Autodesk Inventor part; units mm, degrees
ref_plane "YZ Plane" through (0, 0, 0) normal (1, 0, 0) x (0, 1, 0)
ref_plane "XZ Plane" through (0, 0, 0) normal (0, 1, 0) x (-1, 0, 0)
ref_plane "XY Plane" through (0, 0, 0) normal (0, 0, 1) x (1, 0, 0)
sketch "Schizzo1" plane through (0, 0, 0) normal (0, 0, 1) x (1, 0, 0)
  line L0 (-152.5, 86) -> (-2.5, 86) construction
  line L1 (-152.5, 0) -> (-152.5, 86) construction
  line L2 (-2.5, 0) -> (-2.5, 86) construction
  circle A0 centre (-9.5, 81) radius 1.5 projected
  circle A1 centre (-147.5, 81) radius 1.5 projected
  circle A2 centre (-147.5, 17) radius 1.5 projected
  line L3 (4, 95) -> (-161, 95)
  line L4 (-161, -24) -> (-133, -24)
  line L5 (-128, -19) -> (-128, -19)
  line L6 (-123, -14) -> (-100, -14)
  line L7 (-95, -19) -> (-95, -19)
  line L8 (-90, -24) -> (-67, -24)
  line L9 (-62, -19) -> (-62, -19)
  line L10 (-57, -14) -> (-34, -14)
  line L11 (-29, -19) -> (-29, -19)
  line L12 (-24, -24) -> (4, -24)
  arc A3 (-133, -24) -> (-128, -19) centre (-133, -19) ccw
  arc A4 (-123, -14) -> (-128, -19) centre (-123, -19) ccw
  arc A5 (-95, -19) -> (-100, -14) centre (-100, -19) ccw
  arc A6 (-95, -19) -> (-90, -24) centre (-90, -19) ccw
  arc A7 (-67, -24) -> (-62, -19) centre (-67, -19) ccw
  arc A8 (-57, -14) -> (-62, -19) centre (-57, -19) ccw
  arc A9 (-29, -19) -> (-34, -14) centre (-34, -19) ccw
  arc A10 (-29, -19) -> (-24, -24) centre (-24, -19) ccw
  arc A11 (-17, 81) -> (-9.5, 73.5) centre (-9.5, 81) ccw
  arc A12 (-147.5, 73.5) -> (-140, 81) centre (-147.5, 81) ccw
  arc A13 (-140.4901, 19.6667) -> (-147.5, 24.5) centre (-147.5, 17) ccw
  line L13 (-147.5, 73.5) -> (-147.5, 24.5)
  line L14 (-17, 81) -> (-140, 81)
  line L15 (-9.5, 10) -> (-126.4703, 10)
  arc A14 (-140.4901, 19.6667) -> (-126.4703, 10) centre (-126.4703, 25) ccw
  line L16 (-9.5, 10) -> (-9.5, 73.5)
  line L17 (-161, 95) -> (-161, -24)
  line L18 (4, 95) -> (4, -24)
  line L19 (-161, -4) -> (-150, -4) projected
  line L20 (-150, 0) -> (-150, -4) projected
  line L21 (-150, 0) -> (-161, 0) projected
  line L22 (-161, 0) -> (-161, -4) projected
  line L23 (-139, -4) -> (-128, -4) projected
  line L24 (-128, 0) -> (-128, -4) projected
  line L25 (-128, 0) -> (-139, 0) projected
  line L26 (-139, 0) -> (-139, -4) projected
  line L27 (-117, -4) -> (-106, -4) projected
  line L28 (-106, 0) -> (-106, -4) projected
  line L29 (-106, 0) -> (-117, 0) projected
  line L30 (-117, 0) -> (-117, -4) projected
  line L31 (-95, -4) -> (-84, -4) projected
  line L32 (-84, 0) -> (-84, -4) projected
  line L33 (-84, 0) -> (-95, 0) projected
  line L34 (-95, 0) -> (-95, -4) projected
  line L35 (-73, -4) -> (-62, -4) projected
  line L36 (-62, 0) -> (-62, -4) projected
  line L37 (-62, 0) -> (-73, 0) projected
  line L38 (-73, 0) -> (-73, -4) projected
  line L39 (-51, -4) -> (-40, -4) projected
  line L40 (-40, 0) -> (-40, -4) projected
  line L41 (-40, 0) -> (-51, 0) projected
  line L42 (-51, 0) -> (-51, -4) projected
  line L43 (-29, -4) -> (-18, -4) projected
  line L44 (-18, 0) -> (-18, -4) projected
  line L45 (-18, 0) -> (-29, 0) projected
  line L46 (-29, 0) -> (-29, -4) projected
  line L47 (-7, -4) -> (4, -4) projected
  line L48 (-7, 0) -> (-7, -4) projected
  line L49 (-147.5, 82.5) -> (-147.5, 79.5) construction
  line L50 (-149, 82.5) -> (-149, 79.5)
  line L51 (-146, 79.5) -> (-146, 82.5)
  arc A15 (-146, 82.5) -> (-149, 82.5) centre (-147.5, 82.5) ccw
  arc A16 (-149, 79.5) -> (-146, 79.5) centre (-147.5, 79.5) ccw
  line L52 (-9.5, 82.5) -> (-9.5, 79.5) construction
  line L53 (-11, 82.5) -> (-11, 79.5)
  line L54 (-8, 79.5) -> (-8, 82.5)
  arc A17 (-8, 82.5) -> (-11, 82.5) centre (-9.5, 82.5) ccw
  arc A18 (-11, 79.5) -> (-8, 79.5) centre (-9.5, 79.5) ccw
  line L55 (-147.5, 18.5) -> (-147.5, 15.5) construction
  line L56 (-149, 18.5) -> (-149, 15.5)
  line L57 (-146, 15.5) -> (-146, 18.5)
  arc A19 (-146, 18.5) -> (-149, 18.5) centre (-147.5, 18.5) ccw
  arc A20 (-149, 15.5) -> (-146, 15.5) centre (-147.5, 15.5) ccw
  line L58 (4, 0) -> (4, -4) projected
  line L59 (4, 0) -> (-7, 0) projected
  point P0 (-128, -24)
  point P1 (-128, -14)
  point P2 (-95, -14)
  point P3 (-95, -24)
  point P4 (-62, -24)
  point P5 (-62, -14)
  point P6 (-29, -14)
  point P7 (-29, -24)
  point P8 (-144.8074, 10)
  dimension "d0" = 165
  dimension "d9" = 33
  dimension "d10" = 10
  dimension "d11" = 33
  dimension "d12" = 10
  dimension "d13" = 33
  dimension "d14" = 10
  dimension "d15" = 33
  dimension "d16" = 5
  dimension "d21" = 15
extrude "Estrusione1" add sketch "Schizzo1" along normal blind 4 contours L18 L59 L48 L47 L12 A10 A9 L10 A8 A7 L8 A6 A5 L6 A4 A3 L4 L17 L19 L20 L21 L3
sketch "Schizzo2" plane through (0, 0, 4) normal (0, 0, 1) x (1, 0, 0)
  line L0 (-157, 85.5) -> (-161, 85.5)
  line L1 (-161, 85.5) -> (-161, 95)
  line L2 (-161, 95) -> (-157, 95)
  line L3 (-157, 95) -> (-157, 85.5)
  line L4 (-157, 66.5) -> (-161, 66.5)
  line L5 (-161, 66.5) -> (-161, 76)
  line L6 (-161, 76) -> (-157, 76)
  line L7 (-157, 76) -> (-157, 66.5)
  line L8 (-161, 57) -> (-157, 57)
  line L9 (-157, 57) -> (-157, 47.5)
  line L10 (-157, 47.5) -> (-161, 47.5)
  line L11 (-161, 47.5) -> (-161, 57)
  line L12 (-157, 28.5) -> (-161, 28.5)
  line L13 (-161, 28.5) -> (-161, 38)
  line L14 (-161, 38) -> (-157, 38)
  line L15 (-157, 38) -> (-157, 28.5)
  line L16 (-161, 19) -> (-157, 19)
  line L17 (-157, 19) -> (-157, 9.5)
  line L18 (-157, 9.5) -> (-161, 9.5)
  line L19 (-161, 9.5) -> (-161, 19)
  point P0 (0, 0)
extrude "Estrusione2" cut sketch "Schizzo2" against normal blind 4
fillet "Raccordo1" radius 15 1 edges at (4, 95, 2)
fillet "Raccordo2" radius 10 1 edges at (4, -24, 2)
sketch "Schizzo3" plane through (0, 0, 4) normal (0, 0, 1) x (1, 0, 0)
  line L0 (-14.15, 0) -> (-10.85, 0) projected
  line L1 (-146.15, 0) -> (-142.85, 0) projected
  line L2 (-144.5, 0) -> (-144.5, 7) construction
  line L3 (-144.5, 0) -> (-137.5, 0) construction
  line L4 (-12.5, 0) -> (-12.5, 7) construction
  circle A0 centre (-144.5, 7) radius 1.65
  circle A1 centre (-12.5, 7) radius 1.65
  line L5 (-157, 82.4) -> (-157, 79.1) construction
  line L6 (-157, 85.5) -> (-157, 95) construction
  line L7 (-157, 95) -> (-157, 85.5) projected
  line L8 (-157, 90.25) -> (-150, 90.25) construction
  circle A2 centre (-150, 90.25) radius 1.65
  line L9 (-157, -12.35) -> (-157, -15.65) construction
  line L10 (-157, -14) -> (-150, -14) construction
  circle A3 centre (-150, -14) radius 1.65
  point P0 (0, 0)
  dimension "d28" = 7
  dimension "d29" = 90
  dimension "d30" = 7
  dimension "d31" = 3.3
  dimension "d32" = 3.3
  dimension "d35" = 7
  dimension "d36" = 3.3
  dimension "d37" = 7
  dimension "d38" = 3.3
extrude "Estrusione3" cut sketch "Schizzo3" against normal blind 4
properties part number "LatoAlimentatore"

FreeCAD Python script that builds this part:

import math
import FreeCAD as App
import Part
import Sketcher

V = App.Vector
Q = App.Units.Quantity


def edges_at(feature, points):
    """Names of the edges that pass closest to the given points."""
    edges = feature.Shape.Edges
    near = lambda p: min(range(len(edges)), key=lambda i: edges[i].distToShape(Part.Vertex(*p))[0])
    return sorted({f"Edge{near(p) + 1}" for p in points})

doc = App.newDocument("Part")
body = doc.addObject("PartDesign::Body", "Body")

# Sketch on XY plane
sketch1 = body.newObject("Sketcher::SketchObject", "Sketch")
sketch1.AttachmentSupport = (doc.getObject("XY_Plane"), [""])
sketch1.MapMode = "FlatFace"
sketch1.addGeometry([
    Part.LineSegment(V(4, 0, 0), V(4, 95, 0)),  # 0
    Part.LineSegment(V(4, 95, 0), V(-161, 95, 0)),  # 1
    Part.LineSegment(V(-161, 95, 0), V(-161, 0, 0)),  # 2
    Part.LineSegment(V(-161, 0, 0), V(-150, 0, 0)),  # 3
    Part.LineSegment(V(-150, 0, 0), V(-150, -4, 0)),  # 4
    Part.LineSegment(V(-150, -4, 0), V(-161, -4, 0)),  # 5
    Part.LineSegment(V(-161, -4, 0), V(-161, -24, 0)),  # 6
    Part.LineSegment(V(-161, -24, 0), V(-133, -24, 0)),  # 7
    Part.ArcOfCircle(Part.Circle(V(-133, -19, 0), V(0, 0, 1), 5), math.radians(-90), math.radians(0)),  # 8
    Part.ArcOfCircle(Part.Circle(V(-123, -19, 0), V(0, 0, 1), 5), math.radians(90), math.radians(180)),  # 9
    Part.LineSegment(V(-123, -14, 0), V(-100, -14, 0)),  # 10
    Part.ArcOfCircle(Part.Circle(V(-100, -19, 0), V(0, 0, 1), 5), math.radians(0), math.radians(90)),  # 11
    Part.ArcOfCircle(Part.Circle(V(-90, -19, 0), V(0, 0, 1), 5), math.radians(180), math.radians(270)),  # 12
    Part.LineSegment(V(-90, -24, 0), V(-67, -24, 0)),  # 13
    Part.ArcOfCircle(Part.Circle(V(-67, -19, 0), V(0, 0, 1), 5), math.radians(-90), math.radians(0)),  # 14
    Part.ArcOfCircle(Part.Circle(V(-57, -19, 0), V(0, 0, 1), 5), math.radians(90), math.radians(180)),  # 15
    Part.LineSegment(V(-57, -14, 0), V(-34, -14, 0)),  # 16
    Part.ArcOfCircle(Part.Circle(V(-34, -19, 0), V(0, 0, 1), 5), math.radians(0), math.radians(90)),  # 17
    Part.ArcOfCircle(Part.Circle(V(-24, -19, 0), V(0, 0, 1), 5), math.radians(180), math.radians(270)),  # 18
    Part.LineSegment(V(-24, -24, 0), V(4, -24, 0)),  # 19
    Part.LineSegment(V(4, -24, 0), V(4, -4, 0)),  # 20
    Part.LineSegment(V(4, -4, 0), V(-7, -4, 0)),  # 21
    Part.LineSegment(V(-7, -4, 0), V(-7, 0, 0)),  # 22
    Part.LineSegment(V(-7, 0, 0), V(4, 0, 0)),  # 23
    Part.LineSegment(V(-128, -4, 0), V(-139, -4, 0)),  # 24
    Part.LineSegment(V(-139, -4, 0), V(-139, 0, 0)),  # 25
    Part.LineSegment(V(-139, 0, 0), V(-128, 0, 0)),  # 26
    Part.LineSegment(V(-128, 0, 0), V(-128, -4, 0)),  # 27
    Part.LineSegment(V(-106, -4, 0), V(-117, -4, 0)),  # 28
    Part.LineSegment(V(-117, -4, 0), V(-117, 0, 0)),  # 29
    Part.LineSegment(V(-117, 0, 0), V(-106, 0, 0)),  # 30
    Part.LineSegment(V(-106, 0, 0), V(-106, -4, 0)),  # 31
    Part.LineSegment(V(-84, -4, 0), V(-95, -4, 0)),  # 32
    Part.LineSegment(V(-95, -4, 0), V(-95, 0, 0)),  # 33
    Part.LineSegment(V(-95, 0, 0), V(-84, 0, 0)),  # 34
    Part.LineSegment(V(-84, 0, 0), V(-84, -4, 0)),  # 35
    Part.LineSegment(V(-146, 18.5, 0), V(-146, 15.5, 0)),  # 36
    Part.ArcOfCircle(Part.Circle(V(-147.5, 15.5, 0), V(0, 0, 1), 1.5), math.radians(180), math.radians(360)),  # 37
    Part.LineSegment(V(-149, 15.5, 0), V(-149, 18.5, 0)),  # 38
    Part.ArcOfCircle(Part.Circle(V(-147.5, 18.5, 0), V(0, 0, 1), 1.5), math.radians(0), math.radians(180)),  # 39
    Part.LineSegment(V(-62, -4, 0), V(-73, -4, 0)),  # 40
    Part.LineSegment(V(-73, -4, 0), V(-73, 0, 0)),  # 41
    Part.LineSegment(V(-73, 0, 0), V(-62, 0, 0)),  # 42
    Part.LineSegment(V(-62, 0, 0), V(-62, -4, 0)),  # 43
    Part.LineSegment(V(-40, -4, 0), V(-51, -4, 0)),  # 44
    Part.LineSegment(V(-51, -4, 0), V(-51, 0, 0)),  # 45
    Part.LineSegment(V(-51, 0, 0), V(-40, 0, 0)),  # 46
    Part.LineSegment(V(-40, 0, 0), V(-40, -4, 0)),  # 47
    Part.LineSegment(V(-18, -4, 0), V(-29, -4, 0)),  # 48
    Part.LineSegment(V(-29, -4, 0), V(-29, 0, 0)),  # 49
    Part.LineSegment(V(-29, 0, 0), V(-18, 0, 0)),  # 50
    Part.LineSegment(V(-18, 0, 0), V(-18, -4, 0)),  # 51
    Part.LineSegment(V(-146, 82.5, 0), V(-146, 79.5, 0)),  # 52
    Part.ArcOfCircle(Part.Circle(V(-147.5, 79.5, 0), V(0, 0, 1), 1.5), math.radians(180), math.radians(360)),  # 53
    Part.LineSegment(V(-149, 79.5, 0), V(-149, 82.5, 0)),  # 54
    Part.ArcOfCircle(Part.Circle(V(-147.5, 82.5, 0), V(0, 0, 1), 1.5), math.radians(0), math.radians(180)),  # 55
    Part.LineSegment(V(-140, 81, 0), V(-17, 81, 0)),  # 56
    Part.ArcOfCircle(Part.Circle(V(-9.5, 81, 0), V(0, 0, 1), 7.5), math.radians(180), math.radians(270)),  # 57
    Part.LineSegment(V(-9.5, 73.5, 0), V(-9.5, 10, 0)),  # 58
    Part.LineSegment(V(-9.5, 10, 0), V(-126.5, 10, 0)),  # 59
    Part.ArcOfCircle(Part.Circle(V(-126.5, 25, 0), V(0, 0, 1), 15), math.radians(-159), math.radians(-90)),  # 60
    Part.ArcOfCircle(Part.Circle(V(-147.5, 17, 0), V(0, 0, 1), 7.5), math.radians(21), math.radians(90)),  # 61
    Part.LineSegment(V(-147.5, 24.5, 0), V(-147.5, 73.5, 0)),  # 62
    Part.ArcOfCircle(Part.Circle(V(-147.5, 81, 0), V(0, 0, 1), 7.5), math.radians(-90), math.radians(0)),  # 63
    Part.LineSegment(V(-8, 82.5, 0), V(-8, 79.5, 0)),  # 64
    Part.ArcOfCircle(Part.Circle(V(-9.5, 79.5, 0), V(0, 0, 1), 1.5), math.radians(180), math.radians(360)),  # 65
    Part.LineSegment(V(-11, 79.5, 0), V(-11, 82.5, 0)),  # 66
    Part.ArcOfCircle(Part.Circle(V(-9.5, 82.5, 0), V(0, 0, 1), 1.5), math.radians(0), math.radians(180)),  # 67
], False)
sketch1.addConstraint([
    Sketcher.Constraint("Coincident", 0, 2, 1, 1),
    Sketcher.Constraint("Coincident", 1, 2, 2, 1),
    Sketcher.Constraint("Coincident", 2, 2, 3, 1),
    Sketcher.Constraint("Coincident", 3, 2, 4, 1),
    Sketcher.Constraint("Coincident", 4, 2, 5, 1),
    Sketcher.Constraint("Coincident", 5, 2, 6, 1),
    Sketcher.Constraint("Coincident", 6, 2, 7, 1),
    Sketcher.Constraint("Tangent", 7, 2, 8, 1),
    Sketcher.Constraint("Tangent", 8, 2, 9, 2),
    Sketcher.Constraint("Tangent", 9, 1, 10, 1),
    Sketcher.Constraint("Tangent", 10, 2, 11, 2),
    Sketcher.Constraint("Tangent", 11, 1, 12, 1),
    Sketcher.Constraint("Tangent", 12, 2, 13, 1),
    Sketcher.Constraint("Tangent", 13, 2, 14, 1),
    Sketcher.Constraint("Tangent", 14, 2, 15, 2),
    Sketcher.Constraint("Tangent", 15, 1, 16, 1),
    Sketcher.Constraint("Tangent", 16, 2, 17, 2),
    Sketcher.Constraint("Tangent", 17, 1, 18, 1),
    Sketcher.Constraint("Tangent", 18, 2, 19, 1),
    Sketcher.Constraint("Coincident", 19, 2, 20, 1),
    Sketcher.Constraint("Coincident", 20, 2, 21, 1),
    Sketcher.Constraint("Coincident", 21, 2, 22, 1),
    Sketcher.Constraint("Coincident", 22, 2, 23, 1),
    Sketcher.Constraint("Coincident", 23, 2, 0, 1),
    Sketcher.Constraint("Coincident", 24, 2, 25, 1),
    Sketcher.Constraint("Coincident", 25, 2, 26, 1),
    Sketcher.Constraint("Coincident", 26, 2, 27, 1),
    Sketcher.Constraint("Coincident", 27, 2, 24, 1),
    Sketcher.Constraint("Coincident", 28, 2, 29, 1),
    Sketcher.Constraint("Coincident", 29, 2, 30, 1),
    Sketcher.Constraint("Coincident", 30, 2, 31, 1),
    Sketcher.Constraint("Coincident", 31, 2, 28, 1),
    Sketcher.Constraint("Coincident", 32, 2, 33, 1),
    Sketcher.Constraint("Coincident", 33, 2, 34, 1),
    Sketcher.Constraint("Coincident", 34, 2, 35, 1),
    Sketcher.Constraint("Coincident", 35, 2, 32, 1),
    Sketcher.Constraint("Tangent", 36, 2, 37, 2),
    Sketcher.Constraint("Tangent", 37, 1, 38, 1),
    Sketcher.Constraint("Tangent", 38, 2, 39, 2),
    Sketcher.Constraint("Tangent", 39, 1, 36, 1),
    Sketcher.Constraint("Coincident", 40, 2, 41, 1),
    Sketcher.Constraint("Coincident", 41, 2, 42, 1),
    Sketcher.Constraint("Coincident", 42, 2, 43, 1),
    Sketcher.Constraint("Coincident", 43, 2, 40, 1),
    Sketcher.Constraint("Coincident", 44, 2, 45, 1),
    Sketcher.Constraint("Coincident", 45, 2, 46, 1),
    Sketcher.Constraint("Coincident", 46, 2, 47, 1),
    Sketcher.Constraint("Coincident", 47, 2, 44, 1),
    Sketcher.Constraint("Coincident", 48, 2, 49, 1),
    Sketcher.Constraint("Coincident", 49, 2, 50, 1),
    Sketcher.Constraint("Coincident", 50, 2, 51, 1),
    Sketcher.Constraint("Coincident", 51, 2, 48, 1),
    Sketcher.Constraint("Tangent", 52, 2, 53, 2),
    Sketcher.Constraint("Tangent", 53, 1, 54, 1),
    Sketcher.Constraint("Tangent", 54, 2, 55, 2),
    Sketcher.Constraint("Tangent", 55, 1, 52, 1),
    Sketcher.Constraint("Coincident", 56, 2, 57, 1),
    Sketcher.Constraint("Coincident", 57, 2, 58, 1),
    Sketcher.Constraint("Coincident", 58, 2, 59, 1),
    Sketcher.Constraint("Tangent", 59, 2, 60, 2),
    Sketcher.Constraint("Tangent", 60, 1, 61, 1),
    Sketcher.Constraint("Coincident", 61, 2, 62, 1),
    Sketcher.Constraint("Coincident", 62, 2, 63, 1),
    Sketcher.Constraint("Coincident", 63, 2, 56, 1),
    Sketcher.Constraint("Tangent", 64, 2, 65, 2),
    Sketcher.Constraint("Tangent", 65, 1, 66, 1),
    Sketcher.Constraint("Tangent", 66, 2, 67, 2),
    Sketcher.Constraint("Tangent", 67, 1, 64, 1),
    Sketcher.Constraint("Vertical", 0),
    Sketcher.Constraint("Horizontal", 1),
    Sketcher.Constraint("Vertical", 2),
    Sketcher.Constraint("Horizontal", 3),
    Sketcher.Constraint("Vertical", 4),
    Sketcher.Constraint("Horizontal", 5),
    Sketcher.Constraint("Vertical", 6),
    Sketcher.Constraint("Horizontal", 7),
    Sketcher.Constraint("Horizontal", 10),
    Sketcher.Constraint("Horizontal", 13),
    Sketcher.Constraint("Horizontal", 16),
    Sketcher.Constraint("Horizontal", 19),
    Sketcher.Constraint("Vertical", 20),
    Sketcher.Constraint("Horizontal", 21),
    Sketcher.Constraint("Vertical", 22),
    Sketcher.Constraint("Horizontal", 23),
    Sketcher.Constraint("Horizontal", 24),
    Sketcher.Constraint("Vertical", 25),
    Sketcher.Constraint("Horizontal", 26),
    Sketcher.Constraint("Vertical", 27),
    Sketcher.Constraint("Horizontal", 28),
    Sketcher.Constraint("Vertical", 29),
    Sketcher.Constraint("Horizontal", 30),
    Sketcher.Constraint("Vertical", 31),
    Sketcher.Constraint("Horizontal", 32),
    Sketcher.Constraint("Vertical", 33),
    Sketcher.Constraint("Horizontal", 34),
    Sketcher.Constraint("Vertical", 35),
    Sketcher.Constraint("Vertical", 36),
    Sketcher.Constraint("Vertical", 38),
    Sketcher.Constraint("Horizontal", 40),
    Sketcher.Constraint("Vertical", 41),
    Sketcher.Constraint("Horizontal", 42),
    Sketcher.Constraint("Vertical", 43),
    Sketcher.Constraint("Horizontal", 44),
    Sketcher.Constraint("Vertical", 45),
    Sketcher.Constraint("Horizontal", 46),
    Sketcher.Constraint("Vertical", 47),
    Sketcher.Constraint("Horizontal", 48),
    Sketcher.Constraint("Vertical", 49),
    Sketcher.Constraint("Horizontal", 50),
    Sketcher.Constraint("Vertical", 51),
    Sketcher.Constraint("Vertical", 52),
    Sketcher.Constraint("Vertical", 54),
    Sketcher.Constraint("Horizontal", 56),
    Sketcher.Constraint("Vertical", 58),
    Sketcher.Constraint("Horizontal", 59),
    Sketcher.Constraint("Vertical", 62),
    Sketcher.Constraint("Vertical", 64),
    Sketcher.Constraint("Vertical", 66),
    Sketcher.Constraint("Equal", 8, 9),
    Sketcher.Constraint("Equal", 9, 11),
    Sketcher.Constraint("Equal", 11, 12),
    Sketcher.Constraint("Equal", 12, 14),
    Sketcher.Constraint("Equal", 14, 15),
    Sketcher.Constraint("Equal", 15, 17),
    Sketcher.Constraint("Equal", 17, 18),
    Sketcher.Constraint("Equal", 39, 53),
    Sketcher.Constraint("Equal", 57, 61),
    Sketcher.Constraint("Equal", 61, 63),
    Sketcher.Constraint("Equal", 55, 65),
    Sketcher.Constraint("PointOnObject", 2, 2, -1),
    Sketcher.Constraint("PointOnObject", 22, 2, -1),
    Sketcher.Constraint("PointOnObject", 25, 2, -1),
    Sketcher.Constraint("PointOnObject", 29, 2, -1),
    Sketcher.Constraint("PointOnObject", 33, 2, -1),
    Sketcher.Constraint("PointOnObject", 41, 2, -1),
    Sketcher.Constraint("PointOnObject", 45, 2, -1),
    Sketcher.Constraint("PointOnObject", 49, 2, -1),
    Sketcher.Constraint("Horizontal", 8, 3, 9, 3),
    Sketcher.Constraint("Horizontal", 11, 3, 12, 3),
    Sketcher.Constraint("Horizontal", 14, 3, 15, 3),
    Sketcher.Constraint("Horizontal", 17, 3, 18, 3),
    Sketcher.Constraint("Horizontal", 57, 3, 63, 3),
    Sketcher.Constraint("Horizontal", 53, 3, 65, 3),
    Sketcher.Constraint("Horizontal", 55, 3, 67, 3),
    Sketcher.Constraint("Horizontal", 5, 2, 20, 2),
    Sketcher.Constraint("Horizontal", 21, 2, 24, 2),
    Sketcher.Constraint("Horizontal", 27, 2, 28, 2),
    Sketcher.Constraint("Horizontal", 31, 2, 32, 2),
    Sketcher.Constraint("Horizontal", 35, 2, 40, 2),
    Sketcher.Constraint("Horizontal", 43, 2, 44, 2),
    Sketcher.Constraint("Horizontal", 47, 2, 48, 2),
    Sketcher.Constraint("Horizontal", 63, 3, 56, 2),
    Sketcher.Constraint("Vertical", 39, 3, 53, 3),
    Sketcher.Constraint("Vertical", 55, 3, 61, 3),
    Sketcher.Constraint("Vertical", 61, 3, 63, 3),
    Sketcher.Constraint("Vertical", 57, 3, 65, 3),
    Sketcher.Constraint("Vertical", 2, 2, 5, 2),
    Sketcher.Constraint("Vertical", 0, 2, 19, 2),
    Sketcher.Constraint("Vertical", 8, 2, 26, 2),
    Sketcher.Constraint("Vertical", 11, 1, 32, 2),
    Sketcher.Constraint("Vertical", 14, 2, 42, 2),
    Sketcher.Constraint("Vertical", 17, 1, 48, 2),
    Sketcher.Constraint("Vertical", 67, 3, 57, 2),
    Sketcher.Constraint("Vertical", 63, 3, 61, 2),
    Sketcher.Constraint("Equal", 10, 13),
    Sketcher.Constraint("Equal", 13, 16),
    Sketcher.Constraint("Equal", 7, 19),
    Sketcher.Constraint("Equal", 5, 21),
    Sketcher.Constraint("Equal", 23, 24),
    Sketcher.Constraint("Equal", 26, 28),
    Sketcher.Constraint("Equal", 30, 32),
    Sketcher.Constraint("Equal", 34, 40),
    Sketcher.Constraint("Equal", 42, 44),
    Sketcher.Constraint("Equal", 46, 48),
    Sketcher.Constraint("Equal", 38, 52),
    Sketcher.Constraint("Radius", 8, Q("5 mm")),
    Sketcher.Constraint("Radius", 60, Q("15 mm")),
    Sketcher.Constraint("Radius", 57, Q("7.5 mm")),
    Sketcher.Constraint("DistanceX", 1, 2, 1, 1, Q("165 mm")),
    Sketcher.Constraint("DistanceY", -1, 1, 58, 2, Q("10 mm")),
    Sketcher.Constraint("Radius", 37, Q("1.5 mm")),
    Sketcher.Constraint("DistanceX", 3, 1, 3, 2, Q("11 mm")),
    Sketcher.Constraint("DistanceX", 7, 1, 7, 2, Q("28 mm")),
    Sketcher.Constraint("DistanceX", 56, 1, 56, 2, Q("123 mm")),
    Sketcher.Constraint("DistanceY", 0, 1, 0, 2, Q("95 mm")),
    Sketcher.Constraint("DistanceY", 4, 2, 4, 1, Q("4 mm")),
    Sketcher.Constraint("DistanceY", 6, 2, 6, 1, Q("20 mm")),
    Sketcher.Constraint("DistanceY", 36, 2, 36, 1, Q("3 mm")),
    Sketcher.Constraint("DistanceY", 62, 1, 62, 2, Q("49 mm")),
    Sketcher.Constraint("DistanceY", 58, 2, 58, 1, Q("63.5 mm")),
    Sketcher.Constraint("DistanceX", 8, 3, -1, 1, Q("133 mm")),
    Sketcher.Constraint("DistanceX", 28, 2, -1, 1, Q("117 mm")),
    Sketcher.Constraint("DistanceX", 36, 2, -1, 1, Q("146 mm")),
    Sketcher.Constraint("DistanceX", 44, 2, -1, 1, Q("51 mm")),
    Sketcher.Constraint("DistanceY", -1, 1, 37, 3, Q("15.5 mm")),
    Sketcher.Constraint("DistanceY", -1, 1, 53, 3, Q("79.5 mm")),
])
pad1 = body.newObject("PartDesign::Pad", "Pad")
pad1.Profile = sketch1
pad1.Length = 4

# Sketch on XY plane
sketch2 = body.newObject("Sketcher::SketchObject", "Sketch001")
sketch2.AttachmentSupport = (doc.getObject("XY_Plane"), [""])
sketch2.MapMode = "FlatFace"
sketch2.AttachmentOffset = App.Placement(V(0, 0, 4), App.Rotation())
sketch2.addGeometry([
    Part.LineSegment(V(-161, 85.5, 0), V(-157, 85.5, 0)),  # 0
    Part.LineSegment(V(-157, 85.5, 0), V(-157, 95, 0)),  # 1
    Part.LineSegment(V(-157, 95, 0), V(-161, 95, 0)),  # 2
    Part.LineSegment(V(-161, 95, 0), V(-161, 85.5, 0)),  # 3
    Part.LineSegment(V(-161, 66.5, 0), V(-157, 66.5, 0)),  # 4
    Part.LineSegment(V(-157, 66.5, 0), V(-157, 76, 0)),  # 5
    Part.LineSegment(V(-157, 76, 0), V(-161, 76, 0)),  # 6
    Part.LineSegment(V(-161, 76, 0), V(-161, 66.5, 0)),  # 7
    Part.LineSegment(V(-157, 57, 0), V(-161, 57, 0)),  # 8
    Part.LineSegment(V(-161, 57, 0), V(-161, 47.5, 0)),  # 9
    Part.LineSegment(V(-161, 47.5, 0), V(-157, 47.5, 0)),  # 10
    Part.LineSegment(V(-157, 47.5, 0), V(-157, 57, 0)),  # 11
    Part.LineSegment(V(-161, 28.5, 0), V(-157, 28.5, 0)),  # 12
    Part.LineSegment(V(-157, 28.5, 0), V(-157, 38, 0)),  # 13
    Part.LineSegment(V(-157, 38, 0), V(-161, 38, 0)),  # 14
    Part.LineSegment(V(-161, 38, 0), V(-161, 28.5, 0)),  # 15
    Part.LineSegment(V(-157, 19, 0), V(-161, 19, 0)),  # 16
    Part.LineSegment(V(-161, 19, 0), V(-161, 9.5, 0)),  # 17
    Part.LineSegment(V(-161, 9.5, 0), V(-157, 9.5, 0)),  # 18
    Part.LineSegment(V(-157, 9.5, 0), V(-157, 19, 0)),  # 19
], False)
sketch2.addConstraint([
    Sketcher.Constraint("Coincident", 0, 2, 1, 1),
    Sketcher.Constraint("Coincident", 1, 2, 2, 1),
    Sketcher.Constraint("Coincident", 2, 2, 3, 1),
    Sketcher.Constraint("Coincident", 3, 2, 0, 1),
    Sketcher.Constraint("Coincident", 4, 2, 5, 1),
    Sketcher.Constraint("Coincident", 5, 2, 6, 1),
    Sketcher.Constraint("Coincident", 6, 2, 7, 1),
    Sketcher.Constraint("Coincident", 7, 2, 4, 1),
    Sketcher.Constraint("Coincident", 8, 2, 9, 1),
    Sketcher.Constraint("Coincident", 9, 2, 10, 1),
    Sketcher.Constraint("Coincident", 10, 2, 11, 1),
    Sketcher.Constraint("Coincident", 11, 2, 8, 1),
    Sketcher.Constraint("Coincident", 12, 2, 13, 1),
    Sketcher.Constraint("Coincident", 13, 2, 14, 1),
    Sketcher.Constraint("Coincident", 14, 2, 15, 1),
    Sketcher.Constraint("Coincident", 15, 2, 12, 1),
    Sketcher.Constraint("Coincident", 16, 2, 17, 1),
    Sketcher.Constraint("Coincident", 17, 2, 18, 1),
    Sketcher.Constraint("Coincident", 18, 2, 19, 1),
    Sketcher.Constraint("Coincident", 19, 2, 16, 1),
    Sketcher.Constraint("Horizontal", 0),
    Sketcher.Constraint("Vertical", 1),
    Sketcher.Constraint("Horizontal", 2),
    Sketcher.Constraint("Vertical", 3),
    Sketcher.Constraint("Horizontal", 4),
    Sketcher.Constraint("Vertical", 5),
    Sketcher.Constraint("Horizontal", 6),
    Sketcher.Constraint("Vertical", 7),
    Sketcher.Constraint("Horizontal", 8),
    Sketcher.Constraint("Vertical", 9),
    Sketcher.Constraint("Horizontal", 10),
    Sketcher.Constraint("Vertical", 11),
    Sketcher.Constraint("Horizontal", 12),
    Sketcher.Constraint("Vertical", 13),
    Sketcher.Constraint("Horizontal", 14),
    Sketcher.Constraint("Vertical", 15),
    Sketcher.Constraint("Horizontal", 16),
    Sketcher.Constraint("Vertical", 17),
    Sketcher.Constraint("Horizontal", 18),
    Sketcher.Constraint("Vertical", 19),
    Sketcher.Constraint("Vertical", 1, 2, 4, 2),
    Sketcher.Constraint("Vertical", 3, 2, 6, 2),
    Sketcher.Constraint("Vertical", 7, 2, 8, 2),
    Sketcher.Constraint("Vertical", 5, 2, 10, 2),
    Sketcher.Constraint("Vertical", 11, 2, 12, 2),
    Sketcher.Constraint("Vertical", 9, 2, 14, 2),
    Sketcher.Constraint("Vertical", 15, 2, 16, 2),
    Sketcher.Constraint("Vertical", 13, 2, 18, 2),
    Sketcher.Constraint("Equal", 3, 5),
    Sketcher.Constraint("Equal", 7, 9),
    Sketcher.Constraint("Equal", 11, 13),
    Sketcher.Constraint("Equal", 15, 17),
    Sketcher.Constraint("DistanceX", 0, 1, 0, 2, Q("4 mm")),
    Sketcher.Constraint("DistanceY", 1, 1, 1, 2, Q("9.5 mm")),
    Sketcher.Constraint("DistanceX", 0, 2, -1, 1, Q("157 mm")),
    Sketcher.Constraint("DistanceY", -1, 1, 1, 2, Q("95 mm")),
    Sketcher.Constraint("DistanceY", -1, 1, 5, 2, Q("76 mm")),
    Sketcher.Constraint("DistanceY", -1, 1, 8, 2, Q("57 mm")),
    Sketcher.Constraint("DistanceY", -1, 1, 13, 2, Q("38 mm")),
    Sketcher.Constraint("DistanceY", -1, 1, 16, 2, Q("19 mm")),
])
pocket1 = body.newObject("PartDesign::Pocket", "Pocket")
pocket1.Profile = sketch2
pocket1.Length = 4
doc.recompute()

fillet = body.newObject("PartDesign::Fillet", "Fillet")
fillet.Base = (pocket1, edges_at(pocket1, [(4, 95, 2)]))
fillet.Radius = 15
doc.recompute()

fillet2 = body.newObject("PartDesign::Fillet", "Fillet001")
fillet2.Base = (fillet, edges_at(fillet, [(4, -24, 2)]))
fillet2.Radius = 10

# Sketch on XY plane
sketch3 = body.newObject("Sketcher::SketchObject", "Sketch002")
sketch3.AttachmentSupport = (doc.getObject("XY_Plane"), [""])
sketch3.MapMode = "FlatFace"
sketch3.AttachmentOffset = App.Placement(V(0, 0, 4), App.Rotation())
sketch3.addGeometry([
    Part.Circle(V(-144.5, 7, 0), V(0, 0, 1), 1.6),
    Part.Circle(V(-12.5, 7, 0), V(0, 0, 1), 1.6),
    Part.Circle(V(-150, 90.2, 0), V(0, 0, 1), 1.6),
    Part.Circle(V(-150, -14, 0), V(0, 0, 1), 1.6),
], False)
sketch3.addConstraint([
    Sketcher.Constraint("Equal", 0, 1),
    Sketcher.Constraint("Equal", 1, 2),
    Sketcher.Constraint("Equal", 2, 3),
    Sketcher.Constraint("Horizontal", 0, 3, 1, 3),
    Sketcher.Constraint("Vertical", 2, 3, 3, 3),
    Sketcher.Constraint("Diameter", 0, Q("3.3 mm")),
    Sketcher.Constraint("DistanceY", -1, 1, 0, 3, Q("7 mm")),
    Sketcher.Constraint("DistanceX", 2, 3, -1, 1, Q("150 mm")),
    Sketcher.Constraint("DistanceY", 3, 3, -1, 1, Q("14 mm")),
    Sketcher.Constraint("DistanceX", 0, 3, 1, 3, Q("132 mm")),
    Sketcher.Constraint("DistanceX", 0, 3, -1, 1, Q("144.5 mm")),
    Sketcher.Constraint("DistanceY", -1, 1, 2, 3, Q("90.25 mm")),
])
pocket2 = body.newObject("PartDesign::Pocket", "Pocket001")
pocket2.Profile = sketch3
pocket2.Length = 4

doc.recompute()
